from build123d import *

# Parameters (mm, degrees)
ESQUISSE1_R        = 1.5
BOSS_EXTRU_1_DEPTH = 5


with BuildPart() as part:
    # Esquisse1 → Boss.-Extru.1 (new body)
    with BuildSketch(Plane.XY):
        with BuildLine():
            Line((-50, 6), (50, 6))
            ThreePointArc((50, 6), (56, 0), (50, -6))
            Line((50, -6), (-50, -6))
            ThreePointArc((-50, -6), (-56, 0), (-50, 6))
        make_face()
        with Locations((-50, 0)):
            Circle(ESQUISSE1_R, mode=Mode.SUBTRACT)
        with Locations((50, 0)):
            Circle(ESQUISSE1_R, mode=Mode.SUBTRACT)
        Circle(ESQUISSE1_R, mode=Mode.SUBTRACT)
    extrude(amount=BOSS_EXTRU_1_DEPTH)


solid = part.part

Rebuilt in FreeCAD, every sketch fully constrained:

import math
import FreeCAD as App
import Part
import Sketcher
Q = App.Units.Quantity

doc = App.newDocument("Part")
params = doc.addObject("Spreadsheet::Sheet", "Params")
for row, (alias, value) in enumerate([
    ("sketch1_diameter", "3 mm"),
    ("sketch1_radius", "6 mm"),
    ("sketch1_width", "100 mm"),
    ("pad1_length", "5 mm"),
], start=1):
    params.set(f"A{row}", alias)
    params.set(f"B{row}", "=" + value)
    params.setAlias(f"B{row}", alias)

body = doc.addObject("PartDesign::Body", "Body")

# Sketch on XY plane
sketch1 = body.newObject("Sketcher::SketchObject", "Sketch")
sketch1.AttachmentSupport = (doc.getObject("XY_Plane"), [""])
sketch1.MapMode = "FlatFace"
sketch1.addGeometry([
    Part.LineSegment(App.Vector(50, 6, 0), App.Vector(-50, 6, 0)),  # 0
    Part.ArcOfCircle(Part.Circle(App.Vector(-50, 0, 0), App.Vector(0, 0, 1), 6), math.radians(90), math.radians(270)),  # 1
    Part.LineSegment(App.Vector(-50, -6, 0), App.Vector(50, -6, 0)),  # 2
    Part.ArcOfCircle(Part.Circle(App.Vector(50, 0, 0), App.Vector(0, 0, 1), 6), math.radians(-90), math.radians(90)),  # 3
    Part.Circle(App.Vector(50, 0, 0), App.Vector(0, 0, 1), 1.5),  # 4
    Part.Circle(App.Vector(0, 0, 0), App.Vector(0, 0, 1), 1.5),  # 5
    Part.Circle(App.Vector(-50, 0, 0), App.Vector(0, 0, 1), 1.5),  # 6
], False)
sketch1.addConstraint([
    Sketcher.Constraint("Tangent", 0, 2, 1, 1),
    Sketcher.Constraint("Tangent", 1, 2, 2, 1),
    Sketcher.Constraint("Tangent", 2, 2, 3, 1),
    Sketcher.Constraint("Tangent", 3, 2, 0, 1),
    Sketcher.Constraint("Horizontal", 0),
    Sketcher.Constraint("Horizontal", 2),
    Sketcher.Constraint("Coincident", 5, 3, -1, 1),
    Sketcher.Constraint("Coincident", 4, 3, 3, 3),
    Sketcher.Constraint("Coincident", 6, 3, 1, 3),
    Sketcher.Constraint("Equal", 4, 5),
    Sketcher.Constraint("Equal", 5, 6),
    Sketcher.Constraint("Symmetric", 1, 3, 3, 3, -1, 1),
    Sketcher.Constraint("Diameter", 4, Q("3 mm")),
    Sketcher.Constraint("Radius", 1, Q("6 mm")),
    Sketcher.Constraint("DistanceX", 0, 2, 0, 1, Q("100 mm")),
])
sketch1.setExpression("Constraints[12]", "Params.sketch1_diameter")
sketch1.setExpression("Constraints[13]", "Params.sketch1_radius")
sketch1.setExpression("Constraints[14]", "Params.sketch1_width")
pad1 = body.newObject("PartDesign::Pad", "Pad")
pad1.Profile = sketch1
pad1.setExpression("Length", "Params.pad1_length")

doc.recompute()
